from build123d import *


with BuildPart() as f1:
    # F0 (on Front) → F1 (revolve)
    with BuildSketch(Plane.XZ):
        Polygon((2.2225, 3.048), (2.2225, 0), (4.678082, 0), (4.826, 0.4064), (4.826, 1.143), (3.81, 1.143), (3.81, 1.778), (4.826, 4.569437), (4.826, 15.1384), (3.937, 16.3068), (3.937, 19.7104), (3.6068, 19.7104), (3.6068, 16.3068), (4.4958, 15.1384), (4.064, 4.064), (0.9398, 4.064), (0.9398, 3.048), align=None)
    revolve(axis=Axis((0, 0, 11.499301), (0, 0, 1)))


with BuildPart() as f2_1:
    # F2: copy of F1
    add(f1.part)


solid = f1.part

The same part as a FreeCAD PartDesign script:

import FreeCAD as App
import Part
import Sketcher
Q = App.Units.Quantity


def add_polygon(sketch, points):
    """Adds a closed chain of lines whose ends are joined by coincident constraints."""
    first, n = sketch.GeometryCount, len(points)
    for a, b in zip(points, points[1:] + points[:1]):
        sketch.addGeometry(Part.LineSegment(App.Vector(*a, 0), App.Vector(*b, 0)), False)
    for i in range(n):
        sketch.addConstraint(Sketcher.Constraint("Coincident", first + i, 2, first + (i + 1) % n, 1))

doc = App.newDocument("Part")
params = doc.addObject("Spreadsheet::Sheet", "Params")
for row, (alias, value) in enumerate([
    ("sketch1_width", "0.04 in"),
    ("sketch1_height", "0.12 in"),
    ("sketch1_width2", "0.013 in"),
    ("sketch1_width3", "0.123 in"),
    ("sketch1_height2", "0.029 in"),
    ("revolution_angle", "360 deg"),
], start=1):
    params.set(f"A{row}", alias)
    params.set(f"B{row}", "=" + value)
    params.setAlias(f"B{row}", alias)

body = doc.addObject("PartDesign::Body", "Body")

# Sketch on XZ plane
sketch1 = body.newObject("Sketcher::SketchObject", "Sketch")
sketch1.AttachmentSupport = (doc.getObject("XZ_Plane"), [""])
sketch1.MapMode = "FlatFace"
add_polygon(sketch1, [(2.22, 3.05), (2.22, 0), (4.68, 0), (4.83, 0.41), (4.83, 1.14), (3.81, 1.14), (3.81, 1.78), (4.83, 4.57), (4.83, 15.14), (3.94, 16.31), (3.94, 19.71), (3.61, 19.71), (3.61, 16.31), (4.5, 15.14), (4.06, 4.06), (0.94, 4.06), (0.94, 3.05)])  # lines 0-16
sketch1.addConstraint([
    Sketcher.Constraint("Vertical", 0),
    Sketcher.Constraint("Horizontal", 1),
    Sketcher.Constraint("Vertical", 3),
    Sketcher.Constraint("Horizontal", 4),
    Sketcher.Constraint("Vertical", 5),
    Sketcher.Constraint("Vertical", 7),
    Sketcher.Constraint("Vertical", 9),
    Sketcher.Constraint("Horizontal", 10),
    Sketcher.Constraint("Vertical", 11),
    Sketcher.Constraint("Horizontal", 14),
    Sketcher.Constraint("Vertical", 15),
    Sketcher.Constraint("Horizontal", 16),
    Sketcher.Constraint("PointOnObject", 0, 2, -1),
    Sketcher.Constraint("Parallel", 2, 6),
    Sketcher.Constraint("Parallel", 8, 12),
    Sketcher.Constraint("Horizontal", 8, 2, 11, 2),
    Sketcher.Constraint("Horizontal", 7, 2, 12, 2),
    Sketcher.Constraint("Vertical", 3, 2, 6, 2),
    Sketcher.Constraint("Equal", 4, 15),
    Sketcher.Constraint("Angle", 6, Q("70 deg")),
    Sketcher.Constraint("DistanceX", 4, 2, 4, 1, Q("0.04 in")),
    Sketcher.Constraint("DistanceY", 0, 2, 0, 1, Q("0.12 in")),
    Sketcher.Constraint("DistanceX", 10, 2, 10, 1, Q("0.013 in")),
    Sketcher.Constraint("DistanceX", 14, 2, 14, 1, Q("0.123 in")),
    Sketcher.Constraint("DistanceY", 3, 1, 3, 2, Q("0.029 in")),
    Sketcher.Constraint("DistanceY", 5, 1, 5, 2, Q("0.025 in")),
    Sketcher.Constraint("DistanceY", 9, 1, 9, 2, Q("0.134 in")),
    Sketcher.Constraint("DistanceX", -1, 1, 2, 2, Q("0.19 in")),
    Sketcher.Constraint("DistanceY", -1, 1, 5, 2, Q("0.07 in")),
    Sketcher.Constraint("DistanceX", -1, 1, 13, 2, Q("0.16 in")),
    Sketcher.Constraint("DistanceY", 2, 2, 7, 2, Q("0.58 in")),
    Sketcher.Constraint("DistanceY", 7, 2, 9, 2, Q("0.18 in")),
    Sketcher.Constraint("DistanceX", 16, 1, 16, 2, Q("0.0505 in")),
    Sketcher.Constraint("DistanceX", -1, 1, 8, 2, Q("0.155 in")),
])
sketch1.setExpression("Constraints[37]", "Params.sketch1_width")
sketch1.setExpression("Constraints[38]", "Params.sketch1_height")
sketch1.setExpression("Constraints[39]", "Params.sketch1_width2")
sketch1.setExpression("Constraints[40]", "Params.sketch1_width3")
sketch1.setExpression("Constraints[41]", "Params.sketch1_height2")
revolution = body.newObject("PartDesign::Revolution", "Revolution")
revolution.Profile = sketch1
revolution.ReferenceAxis = (sketch1, ["V_Axis"])
revolution.setExpression("Angle", "Params.revolution_angle")
body2 = doc.addObject("PartDesign::Body", "Body001")
doc.recompute()

body2.BaseFeature = body
doc.recompute()
body.Visibility = False

doc.recompute()
